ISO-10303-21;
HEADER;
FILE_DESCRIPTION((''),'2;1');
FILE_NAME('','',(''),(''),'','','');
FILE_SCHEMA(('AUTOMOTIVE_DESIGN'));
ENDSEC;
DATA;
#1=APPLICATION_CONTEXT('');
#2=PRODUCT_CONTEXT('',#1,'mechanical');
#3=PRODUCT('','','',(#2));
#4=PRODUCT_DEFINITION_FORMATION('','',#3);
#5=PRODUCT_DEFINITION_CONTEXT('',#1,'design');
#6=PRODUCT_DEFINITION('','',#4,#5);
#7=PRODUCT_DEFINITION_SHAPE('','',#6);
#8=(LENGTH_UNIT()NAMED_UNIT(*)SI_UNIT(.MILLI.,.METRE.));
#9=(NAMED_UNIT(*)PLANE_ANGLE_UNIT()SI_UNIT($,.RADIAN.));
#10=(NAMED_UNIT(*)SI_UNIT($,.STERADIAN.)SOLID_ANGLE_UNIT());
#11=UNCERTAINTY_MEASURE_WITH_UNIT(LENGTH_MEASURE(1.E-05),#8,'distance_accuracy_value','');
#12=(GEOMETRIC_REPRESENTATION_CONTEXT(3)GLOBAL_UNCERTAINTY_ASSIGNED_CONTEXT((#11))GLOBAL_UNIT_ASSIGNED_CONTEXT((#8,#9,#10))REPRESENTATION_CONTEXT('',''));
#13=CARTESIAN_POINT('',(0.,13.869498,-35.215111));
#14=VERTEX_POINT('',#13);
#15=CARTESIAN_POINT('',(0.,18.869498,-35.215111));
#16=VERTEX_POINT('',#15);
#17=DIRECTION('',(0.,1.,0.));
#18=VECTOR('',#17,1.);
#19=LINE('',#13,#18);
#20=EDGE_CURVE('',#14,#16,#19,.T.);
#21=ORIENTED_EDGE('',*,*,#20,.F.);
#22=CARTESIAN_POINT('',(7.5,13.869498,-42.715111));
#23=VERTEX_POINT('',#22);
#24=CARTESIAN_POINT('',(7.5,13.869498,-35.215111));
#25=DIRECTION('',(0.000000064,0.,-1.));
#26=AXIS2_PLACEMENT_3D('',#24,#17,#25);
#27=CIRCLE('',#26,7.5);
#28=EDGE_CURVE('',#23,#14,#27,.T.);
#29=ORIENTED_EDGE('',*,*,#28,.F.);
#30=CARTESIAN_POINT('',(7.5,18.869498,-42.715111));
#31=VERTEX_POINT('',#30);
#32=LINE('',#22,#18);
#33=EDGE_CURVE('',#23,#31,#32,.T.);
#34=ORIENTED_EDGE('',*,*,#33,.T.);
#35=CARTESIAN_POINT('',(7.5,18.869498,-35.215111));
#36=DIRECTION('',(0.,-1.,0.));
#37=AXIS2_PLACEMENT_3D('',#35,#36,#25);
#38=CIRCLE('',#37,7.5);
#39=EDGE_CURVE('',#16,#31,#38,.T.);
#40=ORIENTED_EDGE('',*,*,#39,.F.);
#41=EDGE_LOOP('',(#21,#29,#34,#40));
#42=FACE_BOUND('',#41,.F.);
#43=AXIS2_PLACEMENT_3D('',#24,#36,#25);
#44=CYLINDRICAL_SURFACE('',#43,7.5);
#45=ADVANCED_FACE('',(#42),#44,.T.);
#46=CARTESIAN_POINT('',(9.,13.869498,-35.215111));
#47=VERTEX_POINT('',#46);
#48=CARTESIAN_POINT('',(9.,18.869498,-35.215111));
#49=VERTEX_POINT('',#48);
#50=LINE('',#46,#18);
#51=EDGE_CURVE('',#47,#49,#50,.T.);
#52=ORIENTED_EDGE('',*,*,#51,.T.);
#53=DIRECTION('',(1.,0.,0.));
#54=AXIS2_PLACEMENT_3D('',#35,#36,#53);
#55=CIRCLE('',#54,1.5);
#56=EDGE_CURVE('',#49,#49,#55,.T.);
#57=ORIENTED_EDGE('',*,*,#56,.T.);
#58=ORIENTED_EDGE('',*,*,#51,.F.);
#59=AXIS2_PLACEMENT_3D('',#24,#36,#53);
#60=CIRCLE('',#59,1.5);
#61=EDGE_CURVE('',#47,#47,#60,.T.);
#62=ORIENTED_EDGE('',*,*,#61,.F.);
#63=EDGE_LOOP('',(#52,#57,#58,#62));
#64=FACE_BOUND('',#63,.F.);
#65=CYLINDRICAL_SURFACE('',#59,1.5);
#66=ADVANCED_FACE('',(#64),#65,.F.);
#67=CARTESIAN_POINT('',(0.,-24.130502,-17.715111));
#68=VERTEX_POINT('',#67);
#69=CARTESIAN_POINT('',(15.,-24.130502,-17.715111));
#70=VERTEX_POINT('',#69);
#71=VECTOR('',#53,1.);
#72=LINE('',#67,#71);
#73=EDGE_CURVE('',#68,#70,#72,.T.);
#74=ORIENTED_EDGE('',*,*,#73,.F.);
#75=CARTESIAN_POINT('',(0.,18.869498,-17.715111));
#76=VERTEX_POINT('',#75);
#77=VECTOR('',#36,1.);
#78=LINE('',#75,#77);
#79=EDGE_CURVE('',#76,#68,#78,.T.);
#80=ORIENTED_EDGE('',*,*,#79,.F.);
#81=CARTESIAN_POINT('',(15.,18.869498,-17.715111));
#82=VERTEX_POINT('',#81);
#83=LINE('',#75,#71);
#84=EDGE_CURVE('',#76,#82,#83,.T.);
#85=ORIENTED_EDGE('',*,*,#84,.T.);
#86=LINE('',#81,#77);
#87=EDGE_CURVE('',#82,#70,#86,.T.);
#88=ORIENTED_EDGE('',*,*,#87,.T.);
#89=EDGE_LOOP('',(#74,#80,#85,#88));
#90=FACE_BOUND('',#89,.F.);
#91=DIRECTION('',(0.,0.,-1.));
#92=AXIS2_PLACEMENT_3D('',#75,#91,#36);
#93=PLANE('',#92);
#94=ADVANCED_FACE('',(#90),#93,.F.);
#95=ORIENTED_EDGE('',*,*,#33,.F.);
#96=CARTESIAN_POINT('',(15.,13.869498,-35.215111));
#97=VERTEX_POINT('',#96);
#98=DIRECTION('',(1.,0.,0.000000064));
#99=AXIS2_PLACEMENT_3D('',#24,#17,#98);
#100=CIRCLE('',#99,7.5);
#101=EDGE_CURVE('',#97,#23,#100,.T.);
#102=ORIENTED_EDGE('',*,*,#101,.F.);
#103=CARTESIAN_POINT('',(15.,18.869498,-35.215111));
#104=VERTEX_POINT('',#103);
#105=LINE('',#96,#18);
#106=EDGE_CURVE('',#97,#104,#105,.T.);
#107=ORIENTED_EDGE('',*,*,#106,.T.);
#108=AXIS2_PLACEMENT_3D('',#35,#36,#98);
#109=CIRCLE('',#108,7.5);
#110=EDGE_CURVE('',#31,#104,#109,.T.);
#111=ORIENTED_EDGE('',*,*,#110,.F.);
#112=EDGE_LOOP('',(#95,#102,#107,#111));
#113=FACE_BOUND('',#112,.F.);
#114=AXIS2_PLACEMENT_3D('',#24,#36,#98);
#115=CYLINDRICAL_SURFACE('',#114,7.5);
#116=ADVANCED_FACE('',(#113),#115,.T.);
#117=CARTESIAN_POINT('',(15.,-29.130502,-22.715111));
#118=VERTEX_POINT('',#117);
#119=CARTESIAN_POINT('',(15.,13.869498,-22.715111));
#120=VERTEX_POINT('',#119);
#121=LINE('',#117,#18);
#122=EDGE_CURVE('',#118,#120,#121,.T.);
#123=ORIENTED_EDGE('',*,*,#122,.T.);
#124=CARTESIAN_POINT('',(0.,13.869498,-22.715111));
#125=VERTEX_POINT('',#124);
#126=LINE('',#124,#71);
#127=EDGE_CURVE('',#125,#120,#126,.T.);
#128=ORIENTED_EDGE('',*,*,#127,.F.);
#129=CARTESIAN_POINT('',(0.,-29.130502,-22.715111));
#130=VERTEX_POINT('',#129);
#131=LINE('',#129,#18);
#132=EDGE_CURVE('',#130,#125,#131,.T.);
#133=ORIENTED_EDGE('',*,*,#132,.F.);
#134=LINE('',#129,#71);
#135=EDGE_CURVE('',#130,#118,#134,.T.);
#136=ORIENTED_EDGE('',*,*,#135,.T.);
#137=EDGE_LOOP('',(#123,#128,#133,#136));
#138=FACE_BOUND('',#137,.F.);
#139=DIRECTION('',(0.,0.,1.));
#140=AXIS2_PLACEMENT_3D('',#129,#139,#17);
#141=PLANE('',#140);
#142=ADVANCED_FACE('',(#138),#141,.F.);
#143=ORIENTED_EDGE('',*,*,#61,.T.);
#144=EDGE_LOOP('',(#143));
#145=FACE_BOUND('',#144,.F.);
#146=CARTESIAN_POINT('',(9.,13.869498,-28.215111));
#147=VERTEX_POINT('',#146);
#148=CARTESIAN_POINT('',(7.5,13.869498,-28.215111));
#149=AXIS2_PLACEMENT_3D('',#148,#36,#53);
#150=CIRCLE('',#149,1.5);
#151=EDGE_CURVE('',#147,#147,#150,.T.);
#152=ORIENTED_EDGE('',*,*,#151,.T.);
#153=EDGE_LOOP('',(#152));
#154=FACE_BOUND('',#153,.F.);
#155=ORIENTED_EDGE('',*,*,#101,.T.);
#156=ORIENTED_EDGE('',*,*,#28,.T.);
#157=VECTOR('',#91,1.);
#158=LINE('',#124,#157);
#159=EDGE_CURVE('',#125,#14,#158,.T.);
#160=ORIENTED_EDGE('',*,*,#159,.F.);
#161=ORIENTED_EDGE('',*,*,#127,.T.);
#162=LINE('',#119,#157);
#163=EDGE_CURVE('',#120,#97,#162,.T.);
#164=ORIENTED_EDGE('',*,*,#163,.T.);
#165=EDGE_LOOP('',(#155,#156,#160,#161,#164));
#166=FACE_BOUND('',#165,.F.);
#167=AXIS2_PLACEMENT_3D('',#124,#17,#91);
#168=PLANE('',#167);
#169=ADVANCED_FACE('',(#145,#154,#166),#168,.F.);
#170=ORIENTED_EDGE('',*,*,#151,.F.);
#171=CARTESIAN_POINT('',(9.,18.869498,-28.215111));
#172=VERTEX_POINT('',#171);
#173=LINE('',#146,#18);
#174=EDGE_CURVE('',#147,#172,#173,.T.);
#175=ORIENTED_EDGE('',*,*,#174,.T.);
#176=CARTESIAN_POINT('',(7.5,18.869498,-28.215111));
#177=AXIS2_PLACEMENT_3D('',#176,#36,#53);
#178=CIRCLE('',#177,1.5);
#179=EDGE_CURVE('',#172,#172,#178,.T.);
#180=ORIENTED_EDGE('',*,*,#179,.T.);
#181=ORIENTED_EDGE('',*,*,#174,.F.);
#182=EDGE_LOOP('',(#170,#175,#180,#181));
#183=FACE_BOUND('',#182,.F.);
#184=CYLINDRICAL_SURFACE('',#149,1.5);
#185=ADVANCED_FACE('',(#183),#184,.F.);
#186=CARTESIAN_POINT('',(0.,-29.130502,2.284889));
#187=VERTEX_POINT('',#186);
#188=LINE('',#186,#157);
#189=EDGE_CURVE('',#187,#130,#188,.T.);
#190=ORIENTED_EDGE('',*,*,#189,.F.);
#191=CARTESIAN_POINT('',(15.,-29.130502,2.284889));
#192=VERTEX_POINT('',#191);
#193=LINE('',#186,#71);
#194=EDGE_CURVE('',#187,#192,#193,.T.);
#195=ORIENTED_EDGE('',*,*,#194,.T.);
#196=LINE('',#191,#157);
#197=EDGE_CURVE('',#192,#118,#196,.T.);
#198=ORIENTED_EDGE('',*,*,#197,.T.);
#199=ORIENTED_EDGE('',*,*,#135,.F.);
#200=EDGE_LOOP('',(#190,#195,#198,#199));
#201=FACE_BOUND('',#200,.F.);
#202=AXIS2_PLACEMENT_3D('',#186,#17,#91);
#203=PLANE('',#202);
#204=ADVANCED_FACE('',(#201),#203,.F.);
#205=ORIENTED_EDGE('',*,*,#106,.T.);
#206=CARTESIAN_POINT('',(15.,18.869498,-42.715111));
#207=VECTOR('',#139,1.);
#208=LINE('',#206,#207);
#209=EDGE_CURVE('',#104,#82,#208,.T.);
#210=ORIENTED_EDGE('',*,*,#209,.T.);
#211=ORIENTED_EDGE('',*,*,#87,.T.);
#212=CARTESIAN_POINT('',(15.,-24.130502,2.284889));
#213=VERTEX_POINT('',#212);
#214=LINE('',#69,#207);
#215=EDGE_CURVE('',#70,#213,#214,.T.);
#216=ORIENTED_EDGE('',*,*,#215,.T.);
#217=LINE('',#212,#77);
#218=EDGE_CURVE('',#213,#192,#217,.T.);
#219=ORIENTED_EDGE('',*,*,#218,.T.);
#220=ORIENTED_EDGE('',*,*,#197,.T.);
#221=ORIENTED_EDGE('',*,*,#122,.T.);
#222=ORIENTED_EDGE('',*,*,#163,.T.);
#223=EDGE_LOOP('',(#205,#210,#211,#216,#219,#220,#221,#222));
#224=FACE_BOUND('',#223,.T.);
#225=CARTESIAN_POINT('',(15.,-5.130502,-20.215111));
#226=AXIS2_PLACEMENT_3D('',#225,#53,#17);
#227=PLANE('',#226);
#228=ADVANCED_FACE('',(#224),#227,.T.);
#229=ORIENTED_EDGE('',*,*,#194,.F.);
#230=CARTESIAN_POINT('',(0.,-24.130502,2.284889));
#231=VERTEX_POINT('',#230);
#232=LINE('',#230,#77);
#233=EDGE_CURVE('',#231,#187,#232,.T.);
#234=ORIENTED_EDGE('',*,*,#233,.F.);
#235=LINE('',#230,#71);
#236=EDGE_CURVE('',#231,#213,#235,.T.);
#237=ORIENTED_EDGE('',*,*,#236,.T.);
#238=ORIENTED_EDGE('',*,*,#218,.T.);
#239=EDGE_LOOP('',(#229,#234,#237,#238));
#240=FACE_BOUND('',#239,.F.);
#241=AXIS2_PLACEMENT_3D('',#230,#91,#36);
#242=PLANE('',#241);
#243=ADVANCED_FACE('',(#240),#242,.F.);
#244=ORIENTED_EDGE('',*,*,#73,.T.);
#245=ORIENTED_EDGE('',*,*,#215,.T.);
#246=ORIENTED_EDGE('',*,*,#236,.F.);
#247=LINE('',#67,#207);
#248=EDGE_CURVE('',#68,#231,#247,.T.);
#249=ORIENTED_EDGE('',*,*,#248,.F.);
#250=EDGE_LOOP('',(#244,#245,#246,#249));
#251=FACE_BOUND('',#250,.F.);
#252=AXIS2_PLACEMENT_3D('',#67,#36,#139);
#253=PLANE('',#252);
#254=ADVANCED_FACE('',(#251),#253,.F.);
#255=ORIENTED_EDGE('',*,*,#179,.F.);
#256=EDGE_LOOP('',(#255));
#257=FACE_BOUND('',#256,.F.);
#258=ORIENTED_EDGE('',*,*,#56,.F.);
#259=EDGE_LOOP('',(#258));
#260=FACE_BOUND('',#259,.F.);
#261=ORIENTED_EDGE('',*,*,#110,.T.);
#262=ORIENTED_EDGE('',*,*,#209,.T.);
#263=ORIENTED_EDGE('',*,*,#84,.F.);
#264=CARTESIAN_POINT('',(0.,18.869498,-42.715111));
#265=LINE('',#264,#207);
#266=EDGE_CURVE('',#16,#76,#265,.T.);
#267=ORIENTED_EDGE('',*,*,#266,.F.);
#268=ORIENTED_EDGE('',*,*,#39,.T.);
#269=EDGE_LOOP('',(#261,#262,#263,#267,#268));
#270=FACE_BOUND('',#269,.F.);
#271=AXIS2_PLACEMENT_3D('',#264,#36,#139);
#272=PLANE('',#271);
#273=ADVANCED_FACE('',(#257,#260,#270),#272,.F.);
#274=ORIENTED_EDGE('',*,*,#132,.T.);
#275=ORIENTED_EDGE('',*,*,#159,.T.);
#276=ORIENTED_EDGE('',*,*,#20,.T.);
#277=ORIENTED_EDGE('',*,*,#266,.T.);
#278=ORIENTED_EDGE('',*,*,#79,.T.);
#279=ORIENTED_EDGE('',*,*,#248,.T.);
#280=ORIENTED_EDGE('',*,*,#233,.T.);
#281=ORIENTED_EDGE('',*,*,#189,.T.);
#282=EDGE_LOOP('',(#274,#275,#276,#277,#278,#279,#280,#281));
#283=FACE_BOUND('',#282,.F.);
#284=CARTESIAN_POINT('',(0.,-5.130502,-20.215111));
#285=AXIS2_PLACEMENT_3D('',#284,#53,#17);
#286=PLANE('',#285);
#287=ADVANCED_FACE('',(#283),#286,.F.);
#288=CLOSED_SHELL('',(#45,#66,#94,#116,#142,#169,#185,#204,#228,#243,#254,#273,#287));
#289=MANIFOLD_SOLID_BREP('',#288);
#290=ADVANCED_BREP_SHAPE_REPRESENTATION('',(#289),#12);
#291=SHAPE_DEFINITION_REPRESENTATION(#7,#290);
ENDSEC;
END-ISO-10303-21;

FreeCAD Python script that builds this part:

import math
import FreeCAD as App
import Part
import Sketcher
from FreeCAD import Vector
Q = App.Units.Quantity

doc = App.newDocument("Part")
body = doc.addObject("PartDesign::Body", "Body")

# Sketch on YZ plane
sketch1 = body.newObject("Sketcher::SketchObject", "Sketch")
sketch1.AttachmentSupport = (doc.getObject("YZ_Plane"), [""])
sketch1.MapMode = "FlatFace"
sketch1.addGeometry([
    Part.LineSegment(Vector(-24, -18, 0), Vector(-24, 2, 0)),  # 0
    Part.LineSegment(Vector(-24, 2, 0), Vector(-29, 2, 0)),  # 1
    Part.LineSegment(Vector(-29, 2, 0), Vector(-29, -23, 0)),  # 2
    Part.LineSegment(Vector(-29, -23, 0), Vector(14, -23, 0)),  # 3
    Part.LineSegment(Vector(14, -23, 0), Vector(14, -43, 0)),  # 4
    Part.LineSegment(Vector(14, -43, 0), Vector(19, -43, 0)),  # 5
    Part.LineSegment(Vector(19, -43, 0), Vector(19, -18, 0)),  # 6
    Part.LineSegment(Vector(19, -18, 0), Vector(-24, -18, 0)),  # 7
], False)
sketch1.addConstraint([
    Sketcher.Constraint("Coincident", 0, 2, 1, 1),
    Sketcher.Constraint("Coincident", 1, 2, 2, 1),
    Sketcher.Constraint("Coincident", 2, 2, 3, 1),
    Sketcher.Constraint("Coincident", 3, 2, 4, 1),
    Sketcher.Constraint("Coincident", 4, 2, 5, 1),
    Sketcher.Constraint("Coincident", 5, 2, 6, 1),
    Sketcher.Constraint("Coincident", 6, 2, 7, 1),
    Sketcher.Constraint("Coincident", 7, 2, 0, 1),
    Sketcher.Constraint("Vertical", 0),
    Sketcher.Constraint("Horizontal", 1),
    Sketcher.Constraint("Vertical", 2),
    Sketcher.Constraint("Horizontal", 3),
    Sketcher.Constraint("Vertical", 4),
    Sketcher.Constraint("Horizontal", 5),
    Sketcher.Constraint("Vertical", 6),
    Sketcher.Constraint("Horizontal", 7),
    Sketcher.Constraint("Equal", 1, 5),
    Sketcher.Constraint("Equal", 0, 4),
    Sketcher.Constraint("DistanceX", 1, 2, 1, 1, Q("5 mm")),
    Sketcher.Constraint("DistanceX", 3, 1, 3, 2, Q("43 mm")),
    Sketcher.Constraint("DistanceY", 0, 1, 0, 2, Q("20 mm")),
    Sketcher.Constraint("DistanceY", 2, 2, 2, 1, Q("25 mm")),
    Sketcher.Constraint("DistanceX", 0, 2, -1, 1, Q("24.130502 mm")),
    Sketcher.Constraint("DistanceY", -1, 1, 0, 2, Q("2.284889 mm")),
])
pad1 = body.newObject("PartDesign::Pad", "Pad")
pad1.Profile = sketch1
pad1.Length = 15

# Sketch on XZ plane
sketch2 = body.newObject("Sketcher::SketchObject", "Sketch001")
sketch2.AttachmentSupport = (doc.getObject("XZ_Plane"), [""])
sketch2.MapMode = "FlatFace"
sketch2.AttachmentOffset = App.Placement(Vector(0, 0, -13.869498), App.Rotation())
sketch2.addGeometry([
    Part.ArcOfCircle(Part.Circle(Vector(7.5, -35.2, 0), Vector(0, 0, 1), 7.5), math.radians(-90), math.radians(0)),  # 0
    Part.LineSegment(Vector(7.5, -42.7, 0), Vector(15, -42.7, 0)),  # 1
    Part.LineSegment(Vector(15, -42.7, 0), Vector(15, -35.2, 0)),  # 2
    Part.ArcOfCircle(Part.Circle(Vector(7.5, -35.2, 0), Vector(0, 0, 1), 7.5), math.radians(180), math.radians(270)),  # 3
    Part.LineSegment(Vector(0, -35.2, 0), Vector(0, -42.7, 0)),  # 4
    Part.LineSegment(Vector(0, -42.7, 0), Vector(7.5, -42.7, 0)),  # 5
    Part.Circle(Vector(7.5, -35.2, 0), Vector(0, 0, 1), 1.5),  # 6
    Part.Circle(Vector(7.5, -28.2, 0), Vector(0, 0, 1), 1.5),  # 7
], False)
sketch2.addConstraint([
    Sketcher.Constraint("Tangent", 0, 1, 1, 1),
    Sketcher.Constraint("Coincident", 1, 2, 2, 1),
    Sketcher.Constraint("Tangent", 2, 2, 0, 2),
    Sketcher.Constraint("Tangent", 3, 1, 4, 1),
    Sketcher.Constraint("Coincident", 4, 2, 5, 1),
    Sketcher.Constraint("Tangent", 5, 2, 3, 2),
    Sketcher.Constraint("Horizontal", 1),
    Sketcher.Constraint("Vertical", 2),
    Sketcher.Constraint("Vertical", 4),
    Sketcher.Constraint("Horizontal", 5),
    Sketcher.Constraint("Coincident", 3, 3, 0, 3),
    Sketcher.Constraint("Coincident", 6, 3, 0, 3),
    Sketcher.Constraint("Equal", 0, 3),
    Sketcher.Constraint("Equal", 6, 7),
    Sketcher.Constraint("PointOnObject", 3, 1, -2),
    Sketcher.Constraint("Vertical", 6, 3, 7, 3),
    Sketcher.Constraint("Diameter", 6, Q("3 mm")),
    Sketcher.Constraint("Radius", 0, Q("7.5 mm")),
    Sketcher.Constraint("DistanceY", 6, 3, 7, 3, Q("7 mm")),
    Sketcher.Constraint("DistanceY", 0, 3, -1, 1, Q("35.215111 mm")),
])
pocket1 = body.newObject("PartDesign::Pocket", "Pocket")
pocket1.Profile = sketch2
pocket1.Type = "ThroughAll"

doc.recompute()
